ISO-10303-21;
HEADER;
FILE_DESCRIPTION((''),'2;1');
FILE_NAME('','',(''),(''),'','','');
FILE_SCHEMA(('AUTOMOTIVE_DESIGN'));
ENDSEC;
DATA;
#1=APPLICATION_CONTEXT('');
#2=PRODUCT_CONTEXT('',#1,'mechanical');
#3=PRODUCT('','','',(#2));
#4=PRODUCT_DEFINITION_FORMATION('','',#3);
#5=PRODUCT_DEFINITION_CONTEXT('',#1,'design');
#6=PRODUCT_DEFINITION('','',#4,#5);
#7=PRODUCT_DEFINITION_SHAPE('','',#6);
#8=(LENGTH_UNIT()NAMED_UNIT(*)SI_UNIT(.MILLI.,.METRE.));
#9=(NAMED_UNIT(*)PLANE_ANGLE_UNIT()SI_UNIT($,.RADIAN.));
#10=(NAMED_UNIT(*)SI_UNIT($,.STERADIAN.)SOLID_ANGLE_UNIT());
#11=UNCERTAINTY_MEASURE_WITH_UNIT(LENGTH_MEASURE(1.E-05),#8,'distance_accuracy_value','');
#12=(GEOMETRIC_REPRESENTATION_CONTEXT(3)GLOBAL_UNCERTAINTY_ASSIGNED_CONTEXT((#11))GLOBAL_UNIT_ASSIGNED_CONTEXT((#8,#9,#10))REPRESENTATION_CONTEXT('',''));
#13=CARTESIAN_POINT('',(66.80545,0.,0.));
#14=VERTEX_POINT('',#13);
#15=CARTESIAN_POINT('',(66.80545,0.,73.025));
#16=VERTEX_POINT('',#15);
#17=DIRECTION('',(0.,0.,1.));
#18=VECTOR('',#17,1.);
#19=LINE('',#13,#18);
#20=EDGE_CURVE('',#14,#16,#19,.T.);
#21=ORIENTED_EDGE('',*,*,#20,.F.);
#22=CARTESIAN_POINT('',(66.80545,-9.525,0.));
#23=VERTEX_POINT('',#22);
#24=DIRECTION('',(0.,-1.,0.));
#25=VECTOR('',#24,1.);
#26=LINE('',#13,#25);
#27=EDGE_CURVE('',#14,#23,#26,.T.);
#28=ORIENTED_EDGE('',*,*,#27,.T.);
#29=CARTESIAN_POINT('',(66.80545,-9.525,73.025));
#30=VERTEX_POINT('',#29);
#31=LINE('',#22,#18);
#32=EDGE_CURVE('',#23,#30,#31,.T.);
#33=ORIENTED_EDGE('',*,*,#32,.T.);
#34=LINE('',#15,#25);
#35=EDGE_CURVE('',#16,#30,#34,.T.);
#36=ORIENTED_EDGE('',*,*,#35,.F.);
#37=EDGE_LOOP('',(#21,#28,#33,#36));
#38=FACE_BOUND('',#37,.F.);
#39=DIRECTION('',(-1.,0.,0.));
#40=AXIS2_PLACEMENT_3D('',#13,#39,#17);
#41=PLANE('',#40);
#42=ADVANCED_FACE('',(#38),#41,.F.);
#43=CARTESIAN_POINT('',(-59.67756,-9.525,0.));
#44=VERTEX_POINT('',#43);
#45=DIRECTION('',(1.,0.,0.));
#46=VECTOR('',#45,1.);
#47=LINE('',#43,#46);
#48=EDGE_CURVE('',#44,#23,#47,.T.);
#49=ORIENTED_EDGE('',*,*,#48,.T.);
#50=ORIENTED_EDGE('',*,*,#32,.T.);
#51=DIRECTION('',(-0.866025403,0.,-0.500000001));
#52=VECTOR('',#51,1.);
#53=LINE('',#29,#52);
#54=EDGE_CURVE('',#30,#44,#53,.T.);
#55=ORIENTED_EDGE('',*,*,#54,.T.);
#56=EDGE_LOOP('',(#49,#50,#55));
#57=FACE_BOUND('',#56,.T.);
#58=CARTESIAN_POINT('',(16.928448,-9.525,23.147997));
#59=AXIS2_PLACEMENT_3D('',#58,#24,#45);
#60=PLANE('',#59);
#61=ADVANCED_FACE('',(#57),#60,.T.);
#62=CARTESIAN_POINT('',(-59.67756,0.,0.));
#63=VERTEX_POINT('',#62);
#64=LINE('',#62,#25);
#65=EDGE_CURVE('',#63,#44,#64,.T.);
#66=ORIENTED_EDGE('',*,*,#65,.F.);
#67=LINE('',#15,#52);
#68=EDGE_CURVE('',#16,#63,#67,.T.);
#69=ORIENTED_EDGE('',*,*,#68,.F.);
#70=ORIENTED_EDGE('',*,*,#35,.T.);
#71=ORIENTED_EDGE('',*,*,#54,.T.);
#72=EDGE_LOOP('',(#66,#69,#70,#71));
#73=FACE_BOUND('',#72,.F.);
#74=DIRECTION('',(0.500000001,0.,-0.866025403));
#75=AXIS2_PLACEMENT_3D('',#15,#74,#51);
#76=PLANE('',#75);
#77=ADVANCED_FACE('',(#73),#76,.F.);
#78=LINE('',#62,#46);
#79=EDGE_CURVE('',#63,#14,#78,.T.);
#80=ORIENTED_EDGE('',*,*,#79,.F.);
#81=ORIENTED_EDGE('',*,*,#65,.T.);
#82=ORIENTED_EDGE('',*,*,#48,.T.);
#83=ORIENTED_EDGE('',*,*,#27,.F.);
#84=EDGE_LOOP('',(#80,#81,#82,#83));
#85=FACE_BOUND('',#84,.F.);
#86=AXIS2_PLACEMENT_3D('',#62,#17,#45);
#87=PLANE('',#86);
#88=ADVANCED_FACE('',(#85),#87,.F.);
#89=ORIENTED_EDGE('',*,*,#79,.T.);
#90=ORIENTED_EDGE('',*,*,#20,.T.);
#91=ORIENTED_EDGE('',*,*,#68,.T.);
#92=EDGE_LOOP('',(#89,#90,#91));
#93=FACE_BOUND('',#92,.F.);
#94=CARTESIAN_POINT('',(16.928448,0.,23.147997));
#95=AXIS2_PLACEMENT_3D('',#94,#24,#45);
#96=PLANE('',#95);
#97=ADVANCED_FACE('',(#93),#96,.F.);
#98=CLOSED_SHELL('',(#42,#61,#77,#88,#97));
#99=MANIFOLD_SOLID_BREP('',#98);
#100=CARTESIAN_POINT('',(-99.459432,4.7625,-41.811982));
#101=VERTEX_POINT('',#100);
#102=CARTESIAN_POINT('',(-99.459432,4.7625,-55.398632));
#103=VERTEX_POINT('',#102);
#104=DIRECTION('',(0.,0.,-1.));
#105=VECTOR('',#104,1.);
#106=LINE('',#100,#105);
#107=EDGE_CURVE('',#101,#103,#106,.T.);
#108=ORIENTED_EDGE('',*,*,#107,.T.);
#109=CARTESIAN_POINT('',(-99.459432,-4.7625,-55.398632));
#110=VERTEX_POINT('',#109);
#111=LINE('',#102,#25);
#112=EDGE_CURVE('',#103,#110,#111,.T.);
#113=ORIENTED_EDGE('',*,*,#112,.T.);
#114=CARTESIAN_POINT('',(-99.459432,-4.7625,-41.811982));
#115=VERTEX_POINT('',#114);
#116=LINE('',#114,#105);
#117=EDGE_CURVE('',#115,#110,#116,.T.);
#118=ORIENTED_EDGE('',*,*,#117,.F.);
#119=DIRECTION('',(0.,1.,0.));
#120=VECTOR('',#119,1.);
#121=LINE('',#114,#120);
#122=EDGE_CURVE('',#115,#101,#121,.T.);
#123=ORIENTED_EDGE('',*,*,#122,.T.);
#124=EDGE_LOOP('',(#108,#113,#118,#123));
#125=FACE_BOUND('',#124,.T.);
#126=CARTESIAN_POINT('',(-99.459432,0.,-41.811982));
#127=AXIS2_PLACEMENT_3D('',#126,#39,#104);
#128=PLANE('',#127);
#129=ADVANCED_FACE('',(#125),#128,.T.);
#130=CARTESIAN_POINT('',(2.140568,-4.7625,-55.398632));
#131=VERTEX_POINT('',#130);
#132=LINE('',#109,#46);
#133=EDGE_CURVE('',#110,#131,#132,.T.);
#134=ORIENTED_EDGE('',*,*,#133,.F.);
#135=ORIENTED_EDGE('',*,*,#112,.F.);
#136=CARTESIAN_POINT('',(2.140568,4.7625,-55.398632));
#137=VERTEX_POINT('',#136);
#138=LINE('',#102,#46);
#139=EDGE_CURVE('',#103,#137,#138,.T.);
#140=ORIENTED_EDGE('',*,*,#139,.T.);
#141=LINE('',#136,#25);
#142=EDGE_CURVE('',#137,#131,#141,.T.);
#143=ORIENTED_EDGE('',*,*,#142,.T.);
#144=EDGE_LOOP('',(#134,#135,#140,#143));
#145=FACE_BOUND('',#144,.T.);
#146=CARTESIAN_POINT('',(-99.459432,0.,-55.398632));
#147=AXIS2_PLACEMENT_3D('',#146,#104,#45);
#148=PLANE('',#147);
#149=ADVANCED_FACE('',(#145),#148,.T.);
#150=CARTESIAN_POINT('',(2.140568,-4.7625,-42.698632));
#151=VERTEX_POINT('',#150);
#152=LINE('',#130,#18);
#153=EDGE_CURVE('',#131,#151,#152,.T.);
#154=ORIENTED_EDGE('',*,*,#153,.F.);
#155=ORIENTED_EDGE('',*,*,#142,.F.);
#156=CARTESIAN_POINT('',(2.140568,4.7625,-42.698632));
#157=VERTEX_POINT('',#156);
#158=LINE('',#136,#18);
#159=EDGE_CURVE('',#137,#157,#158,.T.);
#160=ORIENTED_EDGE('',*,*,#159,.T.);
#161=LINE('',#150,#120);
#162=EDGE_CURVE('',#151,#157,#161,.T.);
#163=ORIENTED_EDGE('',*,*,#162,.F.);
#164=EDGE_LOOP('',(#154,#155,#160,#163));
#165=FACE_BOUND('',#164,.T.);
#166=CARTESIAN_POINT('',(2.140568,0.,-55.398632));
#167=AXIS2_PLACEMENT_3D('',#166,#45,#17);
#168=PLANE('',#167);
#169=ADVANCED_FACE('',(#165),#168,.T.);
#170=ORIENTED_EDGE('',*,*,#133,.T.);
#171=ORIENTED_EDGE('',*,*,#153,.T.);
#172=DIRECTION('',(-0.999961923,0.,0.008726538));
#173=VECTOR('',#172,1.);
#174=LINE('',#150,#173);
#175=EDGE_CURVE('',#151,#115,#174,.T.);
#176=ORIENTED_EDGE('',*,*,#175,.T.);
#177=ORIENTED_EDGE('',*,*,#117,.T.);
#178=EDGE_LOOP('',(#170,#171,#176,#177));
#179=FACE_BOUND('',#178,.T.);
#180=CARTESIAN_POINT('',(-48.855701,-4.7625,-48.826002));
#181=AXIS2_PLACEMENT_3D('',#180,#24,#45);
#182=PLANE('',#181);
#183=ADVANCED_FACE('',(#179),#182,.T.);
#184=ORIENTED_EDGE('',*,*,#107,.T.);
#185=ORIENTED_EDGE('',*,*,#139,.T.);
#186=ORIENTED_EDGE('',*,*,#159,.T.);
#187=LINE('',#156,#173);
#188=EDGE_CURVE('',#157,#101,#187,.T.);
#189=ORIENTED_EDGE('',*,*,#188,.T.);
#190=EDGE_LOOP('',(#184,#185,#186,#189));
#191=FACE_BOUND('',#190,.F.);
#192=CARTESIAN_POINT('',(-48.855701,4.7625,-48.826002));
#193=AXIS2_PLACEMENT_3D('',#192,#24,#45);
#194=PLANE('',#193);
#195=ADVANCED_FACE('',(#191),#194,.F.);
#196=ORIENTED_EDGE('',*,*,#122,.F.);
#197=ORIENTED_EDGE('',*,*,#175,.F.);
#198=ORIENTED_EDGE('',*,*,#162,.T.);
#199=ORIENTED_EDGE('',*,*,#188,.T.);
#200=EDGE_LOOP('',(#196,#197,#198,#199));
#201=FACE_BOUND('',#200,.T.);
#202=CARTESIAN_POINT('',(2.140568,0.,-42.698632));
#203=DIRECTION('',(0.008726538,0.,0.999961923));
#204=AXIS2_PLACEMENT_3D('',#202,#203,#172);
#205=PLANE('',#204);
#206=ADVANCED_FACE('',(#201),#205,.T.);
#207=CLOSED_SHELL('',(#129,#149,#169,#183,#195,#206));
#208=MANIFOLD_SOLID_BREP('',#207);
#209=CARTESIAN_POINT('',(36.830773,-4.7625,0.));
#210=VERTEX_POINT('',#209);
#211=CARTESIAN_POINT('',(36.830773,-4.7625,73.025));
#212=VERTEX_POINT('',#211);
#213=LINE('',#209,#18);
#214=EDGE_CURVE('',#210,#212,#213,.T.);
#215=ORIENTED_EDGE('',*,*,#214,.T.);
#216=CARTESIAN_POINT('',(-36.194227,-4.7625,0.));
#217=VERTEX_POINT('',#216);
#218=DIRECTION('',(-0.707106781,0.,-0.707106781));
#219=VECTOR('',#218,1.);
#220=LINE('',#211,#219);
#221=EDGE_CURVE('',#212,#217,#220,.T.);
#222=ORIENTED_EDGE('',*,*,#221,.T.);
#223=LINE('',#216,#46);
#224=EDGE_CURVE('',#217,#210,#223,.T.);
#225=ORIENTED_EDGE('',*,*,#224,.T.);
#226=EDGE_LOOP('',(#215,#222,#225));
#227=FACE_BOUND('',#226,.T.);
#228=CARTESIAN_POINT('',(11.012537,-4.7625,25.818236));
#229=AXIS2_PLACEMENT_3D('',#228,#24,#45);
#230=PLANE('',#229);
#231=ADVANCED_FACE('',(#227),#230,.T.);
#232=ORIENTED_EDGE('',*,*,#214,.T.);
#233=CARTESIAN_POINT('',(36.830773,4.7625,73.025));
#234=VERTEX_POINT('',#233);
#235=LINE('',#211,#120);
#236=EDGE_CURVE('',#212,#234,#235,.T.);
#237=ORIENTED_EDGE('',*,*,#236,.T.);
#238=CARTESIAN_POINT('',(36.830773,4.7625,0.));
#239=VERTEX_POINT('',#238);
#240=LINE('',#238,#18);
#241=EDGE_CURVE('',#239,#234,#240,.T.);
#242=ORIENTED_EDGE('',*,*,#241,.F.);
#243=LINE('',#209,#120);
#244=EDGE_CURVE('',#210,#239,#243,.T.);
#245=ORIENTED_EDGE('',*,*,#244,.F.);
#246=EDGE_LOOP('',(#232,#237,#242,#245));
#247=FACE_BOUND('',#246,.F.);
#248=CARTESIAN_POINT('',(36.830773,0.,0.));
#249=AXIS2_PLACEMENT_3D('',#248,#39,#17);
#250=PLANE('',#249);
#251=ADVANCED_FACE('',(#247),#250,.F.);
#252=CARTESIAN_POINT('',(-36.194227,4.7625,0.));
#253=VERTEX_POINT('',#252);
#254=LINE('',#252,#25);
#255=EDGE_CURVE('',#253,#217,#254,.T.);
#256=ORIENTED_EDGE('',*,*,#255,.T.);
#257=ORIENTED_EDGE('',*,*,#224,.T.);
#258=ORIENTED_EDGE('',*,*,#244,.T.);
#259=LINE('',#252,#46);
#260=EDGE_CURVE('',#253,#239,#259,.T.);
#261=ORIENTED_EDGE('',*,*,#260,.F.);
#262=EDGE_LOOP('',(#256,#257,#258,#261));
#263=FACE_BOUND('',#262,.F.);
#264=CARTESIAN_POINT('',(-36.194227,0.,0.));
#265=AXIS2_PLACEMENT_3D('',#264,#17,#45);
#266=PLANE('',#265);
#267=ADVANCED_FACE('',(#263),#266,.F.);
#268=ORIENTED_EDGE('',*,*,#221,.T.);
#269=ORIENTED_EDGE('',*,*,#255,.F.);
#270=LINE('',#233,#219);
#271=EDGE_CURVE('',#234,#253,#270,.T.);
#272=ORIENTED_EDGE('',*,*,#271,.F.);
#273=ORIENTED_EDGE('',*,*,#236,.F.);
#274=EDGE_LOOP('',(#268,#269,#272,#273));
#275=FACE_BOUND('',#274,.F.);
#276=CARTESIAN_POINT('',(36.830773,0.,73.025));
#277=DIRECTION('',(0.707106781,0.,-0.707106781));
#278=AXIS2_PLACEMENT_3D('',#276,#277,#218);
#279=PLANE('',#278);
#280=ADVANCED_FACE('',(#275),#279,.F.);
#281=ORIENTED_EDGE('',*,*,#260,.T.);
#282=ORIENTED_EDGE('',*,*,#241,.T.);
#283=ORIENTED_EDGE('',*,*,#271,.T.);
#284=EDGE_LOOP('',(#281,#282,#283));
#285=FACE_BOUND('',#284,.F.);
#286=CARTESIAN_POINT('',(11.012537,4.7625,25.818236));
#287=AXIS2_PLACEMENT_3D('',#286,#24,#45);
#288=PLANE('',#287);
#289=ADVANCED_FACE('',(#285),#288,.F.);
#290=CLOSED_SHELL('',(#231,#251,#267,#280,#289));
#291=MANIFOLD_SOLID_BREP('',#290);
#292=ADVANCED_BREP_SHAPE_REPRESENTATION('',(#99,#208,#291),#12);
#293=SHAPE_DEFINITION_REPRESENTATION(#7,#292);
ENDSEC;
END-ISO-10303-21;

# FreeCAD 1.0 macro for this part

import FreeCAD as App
import Part
import Sketcher
from FreeCAD import Vector
Q = App.Units.Quantity

doc = App.newDocument("Part")
body = doc.addObject("PartDesign::Body", "Body")

sketch1 = body.newObject("Sketcher::SketchObject", "Sketch")
sketch1.AttachmentSupport = (doc.getObject("XZ_Plane"), [""])
sketch1.MapMode = "FlatFace"
sketch1.addGeometry([
    Part.LineSegment(Vector(67, 73, 0), Vector(-60, 0, 0)),
    Part.LineSegment(Vector(-60, 0, 0), Vector(67, 0, 0)),
    Part.LineSegment(Vector(67, 0, 0), Vector(67, 73, 0)),
], False)
sketch1.addConstraint([
    Sketcher.Constraint("Coincident", 0, 2, 1, 1),
    Sketcher.Constraint("Coincident", 1, 2, 2, 1),
    Sketcher.Constraint("Coincident", 2, 2, 0, 1),
    Sketcher.Constraint("Horizontal", 1),
    Sketcher.Constraint("Vertical", 2),
    Sketcher.Constraint("PointOnObject", 0, 2, -1),
    Sketcher.Constraint("Angle", 0, Q("-150 deg")),
    Sketcher.Constraint("Distance", 0, Q("5.75 in")),
    Sketcher.Constraint("DistanceX", 0, 2, -1, 1, Q("59.67756 mm")),
])
pad1 = body.newObject("PartDesign::Pad", "Pad")
pad1.Profile = sketch1
pad1.Length = Q("0.375 in")
body2 = doc.addObject("PartDesign::Body", "Body001")
body2.AllowCompound = True

sketch2 = body2.newObject("Sketcher::SketchObject", "Sketch001")
sketch2.AttachmentSupport = (doc.getObject("XZ_Plane001"), [""])
sketch2.MapMode = "FlatFace"
sketch2.addGeometry([
    Part.LineSegment(Vector(37, 73, 0), Vector(-36, 0, 0)),
    Part.LineSegment(Vector(-36, 0, 0), Vector(37, 0, 0)),
    Part.LineSegment(Vector(37, 0, 0), Vector(37, 73, 0)),
    Part.LineSegment(Vector(-99, -42, 0), Vector(-99, -55, 0)),
    Part.LineSegment(Vector(-99, -55, 0), Vector(2, -55, 0)),
    Part.LineSegment(Vector(2, -55, 0), Vector(2, -43, 0)),
    Part.LineSegment(Vector(2, -43, 0), Vector(-99, -42, 0)),
], False)
sketch2.addConstraint([
    Sketcher.Constraint("Coincident", 0, 2, 1, 1),
    Sketcher.Constraint("Coincident", 1, 2, 2, 1),
    Sketcher.Constraint("Coincident", 2, 2, 0, 1),
    Sketcher.Constraint("Coincident", 3, 2, 4, 1),
    Sketcher.Constraint("Coincident", 4, 2, 5, 1),
    Sketcher.Constraint("Coincident", 5, 2, 6, 1),
    Sketcher.Constraint("Coincident", 6, 2, 3, 1),
    Sketcher.Constraint("Horizontal", 1),
    Sketcher.Constraint("Vertical", 2),
    Sketcher.Constraint("Vertical", 3),
    Sketcher.Constraint("Horizontal", 4),
    Sketcher.Constraint("Vertical", 5),
    Sketcher.Constraint("PointOnObject", 0, 2, -1),
    Sketcher.Constraint("Equal", 1, 2),
    Sketcher.Constraint("DistanceX", 4, 1, 4, 2, Q("4 in")),
    Sketcher.Constraint("DistanceY", 5, 1, 5, 2, Q("0.5 in")),
    Sketcher.Constraint("Angle", 6, Q("179.5 deg")),
    Sketcher.Constraint("DistanceX", 1, 1, 1, 2, Q("2.875 in")),
    Sketcher.Constraint("DistanceX", -1, 1, 4, 2, Q("2.140568 mm")),
    Sketcher.Constraint("DistanceY", 3, 2, 2, 2, Q("128.423632 mm")),
    Sketcher.Constraint("DistanceX", 0, 2, -1, 1, Q("36.194227 mm")),
])
pad2 = body2.newObject("PartDesign::Pad", "Pad001")
pad2.Profile = sketch2
pad2.Length = Q("0.375 in")
pad2.Midplane = True

doc.recompute()
